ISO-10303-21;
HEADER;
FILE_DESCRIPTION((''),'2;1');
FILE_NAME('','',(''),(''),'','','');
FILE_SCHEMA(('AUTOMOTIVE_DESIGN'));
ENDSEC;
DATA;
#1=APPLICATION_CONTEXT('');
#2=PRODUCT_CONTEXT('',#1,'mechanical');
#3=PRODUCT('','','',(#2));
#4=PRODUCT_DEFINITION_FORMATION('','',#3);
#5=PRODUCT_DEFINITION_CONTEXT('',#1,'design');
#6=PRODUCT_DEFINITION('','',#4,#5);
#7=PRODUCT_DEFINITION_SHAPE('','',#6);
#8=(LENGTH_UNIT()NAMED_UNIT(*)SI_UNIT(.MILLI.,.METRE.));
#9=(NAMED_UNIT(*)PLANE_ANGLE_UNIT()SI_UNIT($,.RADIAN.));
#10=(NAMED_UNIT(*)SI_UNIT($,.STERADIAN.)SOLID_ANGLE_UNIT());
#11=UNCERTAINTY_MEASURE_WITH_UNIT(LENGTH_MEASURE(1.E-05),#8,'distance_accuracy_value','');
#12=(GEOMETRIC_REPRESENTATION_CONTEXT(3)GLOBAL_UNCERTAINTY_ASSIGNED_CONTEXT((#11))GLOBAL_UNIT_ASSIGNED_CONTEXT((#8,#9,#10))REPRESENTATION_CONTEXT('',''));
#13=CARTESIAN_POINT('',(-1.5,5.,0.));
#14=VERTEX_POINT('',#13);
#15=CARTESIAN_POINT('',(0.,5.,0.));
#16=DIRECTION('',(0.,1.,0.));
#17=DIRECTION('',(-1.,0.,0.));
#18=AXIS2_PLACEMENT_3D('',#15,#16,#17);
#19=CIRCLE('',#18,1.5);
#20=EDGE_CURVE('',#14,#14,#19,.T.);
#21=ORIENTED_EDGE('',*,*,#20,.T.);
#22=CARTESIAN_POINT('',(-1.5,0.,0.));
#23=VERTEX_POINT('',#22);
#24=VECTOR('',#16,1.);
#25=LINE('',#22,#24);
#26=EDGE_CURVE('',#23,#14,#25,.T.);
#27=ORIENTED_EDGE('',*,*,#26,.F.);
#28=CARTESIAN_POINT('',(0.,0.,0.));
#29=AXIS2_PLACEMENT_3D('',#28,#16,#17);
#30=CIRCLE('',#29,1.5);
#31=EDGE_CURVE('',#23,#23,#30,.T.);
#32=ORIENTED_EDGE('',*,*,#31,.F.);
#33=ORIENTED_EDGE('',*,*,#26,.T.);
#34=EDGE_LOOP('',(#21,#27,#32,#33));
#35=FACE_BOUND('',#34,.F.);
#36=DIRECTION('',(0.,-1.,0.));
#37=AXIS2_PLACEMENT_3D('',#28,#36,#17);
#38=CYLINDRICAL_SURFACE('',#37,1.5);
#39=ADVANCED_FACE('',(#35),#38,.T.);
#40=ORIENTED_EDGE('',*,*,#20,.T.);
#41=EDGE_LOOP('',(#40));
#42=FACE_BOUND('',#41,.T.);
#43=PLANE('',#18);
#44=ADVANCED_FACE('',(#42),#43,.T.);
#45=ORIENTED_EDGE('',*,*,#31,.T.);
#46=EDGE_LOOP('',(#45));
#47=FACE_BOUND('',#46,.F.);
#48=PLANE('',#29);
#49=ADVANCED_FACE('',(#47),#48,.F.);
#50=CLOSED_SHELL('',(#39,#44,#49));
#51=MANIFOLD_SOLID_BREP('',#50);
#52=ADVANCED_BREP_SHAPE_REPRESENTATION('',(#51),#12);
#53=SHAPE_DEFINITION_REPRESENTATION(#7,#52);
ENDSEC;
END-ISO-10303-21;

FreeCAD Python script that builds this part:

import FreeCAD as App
import Part
import Sketcher

doc = App.newDocument("Part")
body = doc.addObject("PartDesign::Body", "Body")

sketch1 = body.newObject("Sketcher::SketchObject", "Sketch")
sketch1.AttachmentSupport = (doc.getObject("XZ_Plane"), [""])
sketch1.MapMode = "FlatFace"
sketch1.addGeometry(Part.Circle(App.Vector(0, 0, 0), App.Vector(0, 0, 1), 1.5), False)
sketch1.addConstraint([
    Sketcher.Constraint("Coincident", 0, 3, -1, 1),
    Sketcher.Constraint("Diameter", 0, 3.0),
])
pad1 = body.newObject("PartDesign::Pad", "Pad")
pad1.Profile = sketch1
pad1.Length = 5
pad1.Reversed = True

doc.recompute()
